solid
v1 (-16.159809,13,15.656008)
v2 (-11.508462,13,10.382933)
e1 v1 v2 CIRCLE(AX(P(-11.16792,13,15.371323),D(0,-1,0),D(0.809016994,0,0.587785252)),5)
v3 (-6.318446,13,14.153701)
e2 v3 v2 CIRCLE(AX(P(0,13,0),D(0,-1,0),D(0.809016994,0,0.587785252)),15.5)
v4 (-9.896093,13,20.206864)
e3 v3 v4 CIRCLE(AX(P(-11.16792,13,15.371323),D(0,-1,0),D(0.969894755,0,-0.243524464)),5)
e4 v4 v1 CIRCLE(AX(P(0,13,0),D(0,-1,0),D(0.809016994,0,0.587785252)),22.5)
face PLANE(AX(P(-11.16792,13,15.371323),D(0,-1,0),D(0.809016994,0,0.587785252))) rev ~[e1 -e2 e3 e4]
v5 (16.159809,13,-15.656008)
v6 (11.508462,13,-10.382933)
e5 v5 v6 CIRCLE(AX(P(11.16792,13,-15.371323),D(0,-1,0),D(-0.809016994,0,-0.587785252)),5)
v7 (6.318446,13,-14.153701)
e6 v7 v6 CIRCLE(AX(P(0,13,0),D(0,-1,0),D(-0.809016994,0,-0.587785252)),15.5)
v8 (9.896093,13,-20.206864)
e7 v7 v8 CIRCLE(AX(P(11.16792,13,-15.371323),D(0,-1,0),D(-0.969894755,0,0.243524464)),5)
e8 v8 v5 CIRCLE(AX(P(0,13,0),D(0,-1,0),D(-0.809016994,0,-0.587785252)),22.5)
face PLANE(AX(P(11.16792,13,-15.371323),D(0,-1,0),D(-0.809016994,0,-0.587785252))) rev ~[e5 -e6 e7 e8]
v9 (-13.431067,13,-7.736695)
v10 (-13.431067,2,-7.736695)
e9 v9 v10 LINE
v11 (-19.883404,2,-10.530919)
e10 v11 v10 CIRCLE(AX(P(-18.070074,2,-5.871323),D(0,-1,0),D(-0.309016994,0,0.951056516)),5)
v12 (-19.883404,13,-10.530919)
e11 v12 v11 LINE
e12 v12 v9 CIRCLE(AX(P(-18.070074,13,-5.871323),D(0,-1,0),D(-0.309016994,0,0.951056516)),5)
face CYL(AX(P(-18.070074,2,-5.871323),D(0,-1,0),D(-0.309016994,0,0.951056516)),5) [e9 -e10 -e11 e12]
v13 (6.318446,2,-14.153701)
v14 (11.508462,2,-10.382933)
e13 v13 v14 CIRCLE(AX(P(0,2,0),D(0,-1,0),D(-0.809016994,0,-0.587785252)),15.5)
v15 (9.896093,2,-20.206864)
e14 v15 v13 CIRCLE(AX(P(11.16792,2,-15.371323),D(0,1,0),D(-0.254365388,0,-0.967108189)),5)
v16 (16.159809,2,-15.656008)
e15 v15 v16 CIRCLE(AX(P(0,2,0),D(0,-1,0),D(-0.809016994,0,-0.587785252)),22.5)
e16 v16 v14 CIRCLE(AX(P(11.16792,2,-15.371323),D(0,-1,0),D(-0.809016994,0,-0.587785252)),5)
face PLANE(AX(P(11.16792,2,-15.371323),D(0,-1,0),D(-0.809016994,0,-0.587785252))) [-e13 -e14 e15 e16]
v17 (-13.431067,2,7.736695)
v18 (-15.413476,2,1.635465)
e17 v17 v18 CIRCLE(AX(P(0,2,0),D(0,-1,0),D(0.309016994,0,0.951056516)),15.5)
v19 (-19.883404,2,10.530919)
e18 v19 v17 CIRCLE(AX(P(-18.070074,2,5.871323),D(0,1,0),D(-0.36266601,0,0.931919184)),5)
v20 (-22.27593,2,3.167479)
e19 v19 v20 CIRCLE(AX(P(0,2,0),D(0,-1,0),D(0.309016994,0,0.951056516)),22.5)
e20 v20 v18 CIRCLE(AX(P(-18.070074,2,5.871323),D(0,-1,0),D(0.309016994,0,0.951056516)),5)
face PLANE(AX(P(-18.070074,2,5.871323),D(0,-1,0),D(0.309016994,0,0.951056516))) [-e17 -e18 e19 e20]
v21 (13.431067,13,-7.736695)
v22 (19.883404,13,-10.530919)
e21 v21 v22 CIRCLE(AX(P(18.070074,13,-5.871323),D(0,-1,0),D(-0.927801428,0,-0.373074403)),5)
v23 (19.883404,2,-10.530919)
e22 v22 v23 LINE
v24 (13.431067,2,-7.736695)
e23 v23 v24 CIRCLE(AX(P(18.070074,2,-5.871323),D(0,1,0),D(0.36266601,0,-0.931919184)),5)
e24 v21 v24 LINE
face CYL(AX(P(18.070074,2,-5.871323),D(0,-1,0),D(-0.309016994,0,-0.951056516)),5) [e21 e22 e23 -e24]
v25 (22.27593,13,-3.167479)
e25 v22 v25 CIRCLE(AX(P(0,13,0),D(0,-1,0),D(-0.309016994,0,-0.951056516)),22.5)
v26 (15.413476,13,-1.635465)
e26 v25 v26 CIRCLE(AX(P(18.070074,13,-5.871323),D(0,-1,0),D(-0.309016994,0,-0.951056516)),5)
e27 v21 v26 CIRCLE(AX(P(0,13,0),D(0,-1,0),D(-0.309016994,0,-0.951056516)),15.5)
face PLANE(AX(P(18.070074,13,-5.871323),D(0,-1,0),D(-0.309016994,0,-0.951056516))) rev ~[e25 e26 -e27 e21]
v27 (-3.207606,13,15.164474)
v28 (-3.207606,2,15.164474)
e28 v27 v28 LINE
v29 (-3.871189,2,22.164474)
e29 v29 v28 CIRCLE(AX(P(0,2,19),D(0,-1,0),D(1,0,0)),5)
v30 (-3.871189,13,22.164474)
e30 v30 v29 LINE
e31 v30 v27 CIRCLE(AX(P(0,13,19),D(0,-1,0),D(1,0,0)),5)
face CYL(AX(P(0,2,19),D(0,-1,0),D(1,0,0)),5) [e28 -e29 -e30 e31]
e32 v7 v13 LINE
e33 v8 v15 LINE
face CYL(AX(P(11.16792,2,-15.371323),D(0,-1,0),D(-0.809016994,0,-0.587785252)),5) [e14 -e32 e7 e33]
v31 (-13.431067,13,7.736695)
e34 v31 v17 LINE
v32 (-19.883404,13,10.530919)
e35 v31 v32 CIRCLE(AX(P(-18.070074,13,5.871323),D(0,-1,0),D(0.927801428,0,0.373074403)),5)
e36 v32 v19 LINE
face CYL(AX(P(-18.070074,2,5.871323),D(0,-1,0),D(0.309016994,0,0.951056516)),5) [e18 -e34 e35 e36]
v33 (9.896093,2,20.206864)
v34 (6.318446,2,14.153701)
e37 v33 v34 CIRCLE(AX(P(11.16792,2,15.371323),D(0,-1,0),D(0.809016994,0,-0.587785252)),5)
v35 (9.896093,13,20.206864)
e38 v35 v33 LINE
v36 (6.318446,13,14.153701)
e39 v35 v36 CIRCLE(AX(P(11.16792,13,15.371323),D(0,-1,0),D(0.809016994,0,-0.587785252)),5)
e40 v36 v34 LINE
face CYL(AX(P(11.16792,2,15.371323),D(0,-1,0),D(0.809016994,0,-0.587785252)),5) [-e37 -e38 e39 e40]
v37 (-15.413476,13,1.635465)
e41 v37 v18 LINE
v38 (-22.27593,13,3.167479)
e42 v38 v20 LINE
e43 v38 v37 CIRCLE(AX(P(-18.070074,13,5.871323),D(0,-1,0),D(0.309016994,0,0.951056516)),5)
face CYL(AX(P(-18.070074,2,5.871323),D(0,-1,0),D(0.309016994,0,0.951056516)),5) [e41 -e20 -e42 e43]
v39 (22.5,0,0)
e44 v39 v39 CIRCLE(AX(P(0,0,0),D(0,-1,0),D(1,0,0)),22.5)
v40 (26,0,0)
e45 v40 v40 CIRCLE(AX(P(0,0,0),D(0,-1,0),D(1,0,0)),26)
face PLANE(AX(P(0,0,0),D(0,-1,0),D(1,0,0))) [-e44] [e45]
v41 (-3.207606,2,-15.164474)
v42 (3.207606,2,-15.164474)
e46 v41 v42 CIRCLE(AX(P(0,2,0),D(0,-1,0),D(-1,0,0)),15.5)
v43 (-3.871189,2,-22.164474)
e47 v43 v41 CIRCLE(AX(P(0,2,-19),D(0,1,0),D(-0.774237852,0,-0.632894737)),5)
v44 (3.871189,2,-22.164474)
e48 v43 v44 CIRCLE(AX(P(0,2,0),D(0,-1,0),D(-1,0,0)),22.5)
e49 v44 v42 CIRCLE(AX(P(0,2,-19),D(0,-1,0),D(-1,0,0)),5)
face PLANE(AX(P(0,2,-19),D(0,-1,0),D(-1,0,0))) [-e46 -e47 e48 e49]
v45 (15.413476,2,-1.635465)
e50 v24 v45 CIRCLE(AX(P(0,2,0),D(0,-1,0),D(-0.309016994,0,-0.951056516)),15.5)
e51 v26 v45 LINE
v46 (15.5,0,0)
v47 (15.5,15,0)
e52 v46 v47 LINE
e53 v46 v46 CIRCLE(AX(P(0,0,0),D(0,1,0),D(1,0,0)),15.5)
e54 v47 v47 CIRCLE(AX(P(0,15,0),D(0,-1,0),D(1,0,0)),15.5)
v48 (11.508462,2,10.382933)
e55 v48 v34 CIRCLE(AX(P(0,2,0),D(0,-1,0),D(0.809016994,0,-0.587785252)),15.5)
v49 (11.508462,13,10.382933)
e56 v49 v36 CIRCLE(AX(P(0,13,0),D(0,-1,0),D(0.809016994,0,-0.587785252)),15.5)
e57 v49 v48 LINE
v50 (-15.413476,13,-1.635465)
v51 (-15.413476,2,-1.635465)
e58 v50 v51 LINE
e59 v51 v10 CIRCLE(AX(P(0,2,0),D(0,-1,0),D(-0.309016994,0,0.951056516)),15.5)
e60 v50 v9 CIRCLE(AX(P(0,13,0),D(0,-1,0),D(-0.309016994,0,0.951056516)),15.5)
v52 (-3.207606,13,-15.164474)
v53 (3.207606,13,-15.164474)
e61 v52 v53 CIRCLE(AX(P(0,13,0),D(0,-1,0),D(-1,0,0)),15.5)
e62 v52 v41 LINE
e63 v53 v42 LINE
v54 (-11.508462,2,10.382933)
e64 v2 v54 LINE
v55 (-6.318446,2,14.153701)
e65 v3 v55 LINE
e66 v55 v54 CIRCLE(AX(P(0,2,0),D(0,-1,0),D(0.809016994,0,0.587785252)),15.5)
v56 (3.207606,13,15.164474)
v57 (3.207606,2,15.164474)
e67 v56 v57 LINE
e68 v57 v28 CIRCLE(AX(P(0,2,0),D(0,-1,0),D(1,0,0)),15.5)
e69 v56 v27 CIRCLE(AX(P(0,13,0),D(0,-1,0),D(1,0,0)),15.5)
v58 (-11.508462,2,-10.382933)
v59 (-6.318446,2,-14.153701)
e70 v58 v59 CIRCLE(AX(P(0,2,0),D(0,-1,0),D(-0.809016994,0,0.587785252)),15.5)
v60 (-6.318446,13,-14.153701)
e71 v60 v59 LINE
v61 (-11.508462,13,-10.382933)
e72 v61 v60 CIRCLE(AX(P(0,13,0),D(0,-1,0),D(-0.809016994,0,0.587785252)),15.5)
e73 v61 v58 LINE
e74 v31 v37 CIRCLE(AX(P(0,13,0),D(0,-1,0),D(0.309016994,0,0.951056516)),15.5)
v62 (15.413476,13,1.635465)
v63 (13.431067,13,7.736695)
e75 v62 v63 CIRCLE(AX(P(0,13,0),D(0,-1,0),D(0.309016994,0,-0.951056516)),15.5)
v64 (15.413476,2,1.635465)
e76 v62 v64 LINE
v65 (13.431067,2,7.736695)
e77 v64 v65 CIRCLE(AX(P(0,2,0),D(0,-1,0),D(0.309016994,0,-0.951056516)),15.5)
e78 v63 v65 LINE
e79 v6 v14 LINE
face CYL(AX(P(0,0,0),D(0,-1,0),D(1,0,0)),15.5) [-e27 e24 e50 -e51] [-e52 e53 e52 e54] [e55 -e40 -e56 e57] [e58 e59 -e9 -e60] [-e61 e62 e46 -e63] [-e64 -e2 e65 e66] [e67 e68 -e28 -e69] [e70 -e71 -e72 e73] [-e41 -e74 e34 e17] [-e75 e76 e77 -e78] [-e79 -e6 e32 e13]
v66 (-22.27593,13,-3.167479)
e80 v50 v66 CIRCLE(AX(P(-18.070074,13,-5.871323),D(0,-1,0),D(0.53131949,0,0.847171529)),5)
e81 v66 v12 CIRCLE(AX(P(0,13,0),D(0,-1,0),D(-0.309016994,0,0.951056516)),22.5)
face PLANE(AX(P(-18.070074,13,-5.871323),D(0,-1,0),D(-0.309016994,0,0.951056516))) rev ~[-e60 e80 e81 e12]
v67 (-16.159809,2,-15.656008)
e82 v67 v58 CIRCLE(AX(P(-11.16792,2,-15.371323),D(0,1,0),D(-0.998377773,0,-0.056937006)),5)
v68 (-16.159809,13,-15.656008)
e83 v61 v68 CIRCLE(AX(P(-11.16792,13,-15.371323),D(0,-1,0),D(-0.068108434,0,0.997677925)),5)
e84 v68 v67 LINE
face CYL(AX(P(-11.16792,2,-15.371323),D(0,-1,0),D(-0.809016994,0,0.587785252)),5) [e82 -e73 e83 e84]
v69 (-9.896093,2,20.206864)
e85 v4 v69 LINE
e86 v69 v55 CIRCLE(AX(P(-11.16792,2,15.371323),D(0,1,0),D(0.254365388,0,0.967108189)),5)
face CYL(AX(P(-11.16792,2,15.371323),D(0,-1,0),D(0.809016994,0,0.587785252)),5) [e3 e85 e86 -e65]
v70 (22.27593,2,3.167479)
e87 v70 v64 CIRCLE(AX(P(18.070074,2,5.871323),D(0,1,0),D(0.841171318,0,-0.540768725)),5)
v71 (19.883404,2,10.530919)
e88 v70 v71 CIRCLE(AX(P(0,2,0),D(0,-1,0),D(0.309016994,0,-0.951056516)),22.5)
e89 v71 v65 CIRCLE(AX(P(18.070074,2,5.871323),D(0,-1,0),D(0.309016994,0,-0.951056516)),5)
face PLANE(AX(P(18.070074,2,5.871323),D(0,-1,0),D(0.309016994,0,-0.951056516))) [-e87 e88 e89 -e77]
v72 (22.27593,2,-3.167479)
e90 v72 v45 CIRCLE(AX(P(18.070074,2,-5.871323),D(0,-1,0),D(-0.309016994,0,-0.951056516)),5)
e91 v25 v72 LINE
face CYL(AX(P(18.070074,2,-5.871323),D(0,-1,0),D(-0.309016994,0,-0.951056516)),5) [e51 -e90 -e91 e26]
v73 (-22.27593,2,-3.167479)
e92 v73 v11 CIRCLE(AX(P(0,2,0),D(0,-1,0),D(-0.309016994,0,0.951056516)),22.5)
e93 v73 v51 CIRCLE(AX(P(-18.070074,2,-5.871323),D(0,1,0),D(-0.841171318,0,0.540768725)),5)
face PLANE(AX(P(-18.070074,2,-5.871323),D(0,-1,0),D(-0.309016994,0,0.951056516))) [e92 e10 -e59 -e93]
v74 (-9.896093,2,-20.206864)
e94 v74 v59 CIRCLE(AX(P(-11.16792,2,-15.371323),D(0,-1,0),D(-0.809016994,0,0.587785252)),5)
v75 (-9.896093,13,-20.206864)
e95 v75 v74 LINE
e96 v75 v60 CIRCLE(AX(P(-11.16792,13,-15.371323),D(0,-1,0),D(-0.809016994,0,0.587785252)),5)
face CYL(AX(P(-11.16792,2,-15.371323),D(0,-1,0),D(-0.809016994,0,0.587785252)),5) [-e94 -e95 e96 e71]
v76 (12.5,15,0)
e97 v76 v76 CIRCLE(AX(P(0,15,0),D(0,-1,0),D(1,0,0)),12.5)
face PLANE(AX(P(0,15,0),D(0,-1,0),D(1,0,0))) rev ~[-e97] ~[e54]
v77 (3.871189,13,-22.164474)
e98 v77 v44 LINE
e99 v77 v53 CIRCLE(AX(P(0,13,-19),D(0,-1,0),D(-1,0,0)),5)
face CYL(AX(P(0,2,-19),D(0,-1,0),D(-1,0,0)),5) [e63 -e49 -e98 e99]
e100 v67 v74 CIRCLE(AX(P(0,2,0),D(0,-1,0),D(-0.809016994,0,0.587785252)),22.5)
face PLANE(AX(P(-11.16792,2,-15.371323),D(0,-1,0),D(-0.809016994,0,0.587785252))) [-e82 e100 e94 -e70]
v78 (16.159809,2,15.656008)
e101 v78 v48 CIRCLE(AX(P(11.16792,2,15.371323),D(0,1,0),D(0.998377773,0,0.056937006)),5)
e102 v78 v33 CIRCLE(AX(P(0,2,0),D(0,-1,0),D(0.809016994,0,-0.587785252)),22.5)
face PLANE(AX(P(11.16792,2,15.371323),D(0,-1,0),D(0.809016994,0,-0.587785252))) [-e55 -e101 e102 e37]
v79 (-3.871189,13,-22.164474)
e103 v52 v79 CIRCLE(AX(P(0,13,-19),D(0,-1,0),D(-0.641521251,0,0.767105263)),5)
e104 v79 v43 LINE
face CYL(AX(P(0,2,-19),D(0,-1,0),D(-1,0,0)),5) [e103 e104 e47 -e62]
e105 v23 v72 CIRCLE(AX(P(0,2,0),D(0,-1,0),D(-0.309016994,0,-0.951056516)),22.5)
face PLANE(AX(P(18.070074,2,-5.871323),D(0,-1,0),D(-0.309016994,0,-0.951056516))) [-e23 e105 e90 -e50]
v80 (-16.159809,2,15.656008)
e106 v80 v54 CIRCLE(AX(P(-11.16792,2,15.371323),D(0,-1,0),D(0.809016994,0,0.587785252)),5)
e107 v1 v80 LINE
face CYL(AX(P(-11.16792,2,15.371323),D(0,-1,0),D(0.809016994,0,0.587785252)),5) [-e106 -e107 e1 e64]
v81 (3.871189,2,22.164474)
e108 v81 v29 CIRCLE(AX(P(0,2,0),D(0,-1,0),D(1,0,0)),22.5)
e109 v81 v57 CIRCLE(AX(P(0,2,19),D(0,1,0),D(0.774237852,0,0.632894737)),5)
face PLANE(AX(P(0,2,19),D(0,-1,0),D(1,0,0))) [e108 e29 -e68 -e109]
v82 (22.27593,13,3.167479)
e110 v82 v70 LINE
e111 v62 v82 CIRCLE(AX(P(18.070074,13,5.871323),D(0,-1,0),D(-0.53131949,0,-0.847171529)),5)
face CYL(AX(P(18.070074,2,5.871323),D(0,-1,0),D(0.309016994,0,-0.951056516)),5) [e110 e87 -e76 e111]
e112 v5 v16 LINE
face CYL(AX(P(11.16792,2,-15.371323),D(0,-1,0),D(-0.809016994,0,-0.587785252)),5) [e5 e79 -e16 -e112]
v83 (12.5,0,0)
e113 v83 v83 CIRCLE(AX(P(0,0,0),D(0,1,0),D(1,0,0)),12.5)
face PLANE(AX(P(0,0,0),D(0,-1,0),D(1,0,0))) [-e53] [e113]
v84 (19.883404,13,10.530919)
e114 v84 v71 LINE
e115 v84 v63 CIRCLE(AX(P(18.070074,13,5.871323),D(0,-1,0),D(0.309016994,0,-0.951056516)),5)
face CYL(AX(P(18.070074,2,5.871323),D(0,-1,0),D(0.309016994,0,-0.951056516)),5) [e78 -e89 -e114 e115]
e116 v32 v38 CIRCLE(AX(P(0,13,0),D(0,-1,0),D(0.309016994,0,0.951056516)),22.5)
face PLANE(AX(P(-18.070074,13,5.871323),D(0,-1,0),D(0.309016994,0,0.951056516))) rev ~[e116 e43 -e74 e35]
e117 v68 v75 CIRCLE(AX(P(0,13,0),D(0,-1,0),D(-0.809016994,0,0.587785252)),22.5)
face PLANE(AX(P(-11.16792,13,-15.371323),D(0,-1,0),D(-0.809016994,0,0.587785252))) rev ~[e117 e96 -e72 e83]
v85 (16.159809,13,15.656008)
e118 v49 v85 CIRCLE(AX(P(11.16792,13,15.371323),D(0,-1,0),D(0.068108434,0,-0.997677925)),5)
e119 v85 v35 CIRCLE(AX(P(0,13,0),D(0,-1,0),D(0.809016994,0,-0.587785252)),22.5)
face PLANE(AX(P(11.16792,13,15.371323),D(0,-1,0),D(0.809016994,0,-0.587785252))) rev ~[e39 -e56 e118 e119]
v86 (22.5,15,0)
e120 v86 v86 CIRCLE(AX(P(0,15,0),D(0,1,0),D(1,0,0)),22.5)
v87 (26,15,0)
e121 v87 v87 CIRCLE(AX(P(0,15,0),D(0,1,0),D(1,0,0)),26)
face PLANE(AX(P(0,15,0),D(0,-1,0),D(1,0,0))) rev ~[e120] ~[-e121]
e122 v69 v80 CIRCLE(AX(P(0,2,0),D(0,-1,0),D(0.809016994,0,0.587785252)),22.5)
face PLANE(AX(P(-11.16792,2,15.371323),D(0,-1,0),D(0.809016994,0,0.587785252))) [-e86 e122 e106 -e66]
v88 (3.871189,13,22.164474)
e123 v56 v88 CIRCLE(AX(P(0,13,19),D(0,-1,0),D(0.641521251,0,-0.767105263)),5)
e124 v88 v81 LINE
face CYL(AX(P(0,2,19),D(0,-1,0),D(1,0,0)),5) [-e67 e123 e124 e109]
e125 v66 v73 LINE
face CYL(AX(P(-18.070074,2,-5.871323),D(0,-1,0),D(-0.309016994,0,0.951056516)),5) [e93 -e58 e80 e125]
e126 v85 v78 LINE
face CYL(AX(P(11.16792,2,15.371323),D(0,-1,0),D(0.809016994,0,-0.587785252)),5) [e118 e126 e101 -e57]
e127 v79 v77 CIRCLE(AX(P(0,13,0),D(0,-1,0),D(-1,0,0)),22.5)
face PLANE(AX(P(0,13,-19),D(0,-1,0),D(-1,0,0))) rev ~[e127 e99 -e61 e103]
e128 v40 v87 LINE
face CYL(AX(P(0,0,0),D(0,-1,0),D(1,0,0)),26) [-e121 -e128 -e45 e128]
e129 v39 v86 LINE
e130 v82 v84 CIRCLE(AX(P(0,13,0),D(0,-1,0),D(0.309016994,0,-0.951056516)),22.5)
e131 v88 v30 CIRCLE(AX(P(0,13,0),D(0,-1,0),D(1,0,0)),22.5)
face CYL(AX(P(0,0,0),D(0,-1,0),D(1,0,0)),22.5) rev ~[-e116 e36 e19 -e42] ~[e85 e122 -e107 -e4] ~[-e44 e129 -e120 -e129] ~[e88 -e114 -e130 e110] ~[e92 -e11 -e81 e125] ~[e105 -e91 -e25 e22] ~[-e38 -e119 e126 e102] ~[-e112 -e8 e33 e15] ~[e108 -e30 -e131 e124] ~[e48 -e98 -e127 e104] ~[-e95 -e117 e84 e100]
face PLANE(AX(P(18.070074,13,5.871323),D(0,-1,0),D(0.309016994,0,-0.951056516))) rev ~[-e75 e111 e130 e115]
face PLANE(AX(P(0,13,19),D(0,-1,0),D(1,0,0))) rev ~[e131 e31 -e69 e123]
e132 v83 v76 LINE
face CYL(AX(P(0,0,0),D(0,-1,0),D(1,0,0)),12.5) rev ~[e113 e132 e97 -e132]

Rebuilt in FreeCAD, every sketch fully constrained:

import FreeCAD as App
import Part
import Sketcher
from FreeCAD import Vector
Q = App.Units.Quantity

doc = App.newDocument("Part")
body = doc.addObject("PartDesign::Body", "Body")

# Sketch on XZ plane
sketch1 = doc.addObject("Sketcher::SketchObject", "Sketch")
body.addObject(sketch1)
sketch1.AttachmentSupport = (doc.XZ_Plane, [""])
sketch1.MapMode = "FlatFace"
sketch1.addGeometry([
    Part.Circle(Vector(0, 0, 0), Vector(0, 0, 1), 16),
    Part.Circle(Vector(0, 0, 0), Vector(0, 0, 1), 12),
], False)
sketch1.addConstraint([
    Sketcher.Constraint("Coincident", 0, 3, -1, 1),
    Sketcher.Constraint("Coincident", 1, 3, -1, 1),
    Sketcher.Constraint("Diameter", 0, Q("31 mm")),
    Sketcher.Constraint("Diameter", 1, Q("25 mm")),
])
pad1 = doc.addObject("PartDesign::Pad", "Pad")
body.addObject(pad1)
pad1.Profile = sketch1
pad1.Length = 15
pad1.Reversed = True
body2 = doc.addObject("PartDesign::Body", "Body001")

# Sketch on XZ plane
sketch2 = doc.addObject("Sketcher::SketchObject", "Sketch001")
body2.addObject(sketch2)
sketch2.AttachmentSupport = (doc.getObject("XZ_Plane001"), [""])
sketch2.MapMode = "FlatFace"
sketch2.addGeometry([
    Part.Circle(Vector(0, 0, 0), Vector(0, 0, 1), 26),
    Part.Circle(Vector(0, 0, 0), Vector(0, 0, 1), 22),
], False)
sketch2.addConstraint([
    Sketcher.Constraint("Coincident", 0, 3, -1, 1),
    Sketcher.Constraint("Coincident", 1, 3, -1, 1),
    Sketcher.Constraint("Diameter", 0, Q("52 mm")),
    Sketcher.Constraint("Diameter", 1, Q("45 mm")),
])
pad2 = doc.addObject("PartDesign::Pad", "Pad001")
body2.addObject(pad2)
pad2.Profile = sketch2
pad2.Length = 15
pad2.Reversed = True
body.AllowCompound = True
doc.recompute()

boolean = doc.addObject("PartDesign::Boolean", "Boolean")
body.addObject(boolean)
boolean.Type = "Fuse"
boolean.addObjects([body2])

# Sketch on XZ plane
sketch3 = doc.addObject("Sketcher::SketchObject", "Sketch002")
body.addObject(sketch3)
sketch3.AttachmentSupport = (doc.XZ_Plane, [""])
sketch3.MapMode = "FlatFace"
sketch3.AttachmentOffset = App.Placement(Vector(0, 0, -2), App.Rotation())
sketch3.addGeometry(Part.Circle(Vector(0, 19, 0), Vector(0, 0, 1), 5), False)
sketch3.addConstraint([
    Sketcher.Constraint("PointOnObject", 0, 3, -2),
    Sketcher.Constraint("Diameter", 0, Q("10 mm")),
    Sketcher.Constraint("DistanceY", -1, 1, 0, 3, Q("19 mm")),
])
pad3 = doc.addObject("PartDesign::Pad", "Pad002")
body.addObject(pad3)
pad3.Profile = sketch3
pad3.Length = 11
pad3.Reversed = True
body3 = doc.addObject("PartDesign::Body", "Body002")
doc.recompute()

body3.BaseFeature = body
doc.recompute()

body4 = doc.addObject("PartDesign::Body", "Body003")
body4.BaseFeature = body
body4.Placement = App.Placement(Vector(0, 0, 0), App.Rotation(Vector(0, -1, 0), 36))
boolean2 = doc.addObject("PartDesign::Boolean", "Boolean001")
body3.addObject(boolean2)
boolean2.Type = "Fuse"
boolean2.addObjects([body4])
doc.recompute()

body5 = doc.addObject("PartDesign::Body", "Body004")
body5.BaseFeature = body
body5.Placement = App.Placement(Vector(0, 0, 0), App.Rotation(Vector(0, -1, 0), 72))
boolean3 = doc.addObject("PartDesign::Boolean", "Boolean002")
body3.addObject(boolean3)
boolean3.Type = "Fuse"
boolean3.addObjects([body5])
doc.recompute()

body6 = doc.addObject("PartDesign::Body", "Body005")
body6.BaseFeature = body
body6.Placement = App.Placement(Vector(0, 0, 0), App.Rotation(Vector(0, -1, 0), 108))
boolean4 = doc.addObject("PartDesign::Boolean", "Boolean003")
body3.addObject(boolean4)
boolean4.Type = "Fuse"
boolean4.addObjects([body6])
doc.recompute()

body7 = doc.addObject("PartDesign::Body", "Body006")
body7.BaseFeature = body
body7.Placement = App.Placement(Vector(0, 0, 0), App.Rotation(Vector(0, -1, 0), 144))
boolean5 = doc.addObject("PartDesign::Boolean", "Boolean004")
body3.addObject(boolean5)
boolean5.Type = "Fuse"
boolean5.addObjects([body7])
doc.recompute()

body8 = doc.addObject("PartDesign::Body", "Body007")
body8.BaseFeature = body
body8.Placement = App.Placement(Vector(0, 0, 0), App.Rotation(Vector(0, -1, 0), 180))
boolean6 = doc.addObject("PartDesign::Boolean", "Boolean005")
body3.addObject(boolean6)
boolean6.Type = "Fuse"
boolean6.addObjects([body8])
doc.recompute()

body9 = doc.addObject("PartDesign::Body", "Body008")
body9.BaseFeature = body
body9.Placement = App.Placement(Vector(0, 0, 0), App.Rotation(Vector(0, -1, 0), 216))
boolean7 = doc.addObject("PartDesign::Boolean", "Boolean006")
body3.addObject(boolean7)
boolean7.Type = "Fuse"
boolean7.addObjects([body9])
doc.recompute()

body10 = doc.addObject("PartDesign::Body", "Body009")
body10.BaseFeature = body
body10.Placement = App.Placement(Vector(0, 0, 0), App.Rotation(Vector(0, -1, 0), 252))
boolean8 = doc.addObject("PartDesign::Boolean", "Boolean007")
body3.addObject(boolean8)
boolean8.Type = "Fuse"
boolean8.addObjects([body10])
doc.recompute()

body11 = doc.addObject("PartDesign::Body", "Body010")
body11.BaseFeature = body
body11.Placement = App.Placement(Vector(0, 0, 0), App.Rotation(Vector(0, -1, 0), 288))
boolean9 = doc.addObject("PartDesign::Boolean", "Boolean008")
body3.addObject(boolean9)
boolean9.Type = "Fuse"
boolean9.addObjects([body11])
doc.recompute()

body.Placement = App.Placement(Vector(0, 0, 0), App.Rotation(Vector(0, -1, 0), 324))
boolean10 = doc.addObject("PartDesign::Boolean", "Boolean009")
body3.addObject(boolean10)
boolean10.Type = "Fuse"
boolean10.addObjects([body])

doc.recompute()
